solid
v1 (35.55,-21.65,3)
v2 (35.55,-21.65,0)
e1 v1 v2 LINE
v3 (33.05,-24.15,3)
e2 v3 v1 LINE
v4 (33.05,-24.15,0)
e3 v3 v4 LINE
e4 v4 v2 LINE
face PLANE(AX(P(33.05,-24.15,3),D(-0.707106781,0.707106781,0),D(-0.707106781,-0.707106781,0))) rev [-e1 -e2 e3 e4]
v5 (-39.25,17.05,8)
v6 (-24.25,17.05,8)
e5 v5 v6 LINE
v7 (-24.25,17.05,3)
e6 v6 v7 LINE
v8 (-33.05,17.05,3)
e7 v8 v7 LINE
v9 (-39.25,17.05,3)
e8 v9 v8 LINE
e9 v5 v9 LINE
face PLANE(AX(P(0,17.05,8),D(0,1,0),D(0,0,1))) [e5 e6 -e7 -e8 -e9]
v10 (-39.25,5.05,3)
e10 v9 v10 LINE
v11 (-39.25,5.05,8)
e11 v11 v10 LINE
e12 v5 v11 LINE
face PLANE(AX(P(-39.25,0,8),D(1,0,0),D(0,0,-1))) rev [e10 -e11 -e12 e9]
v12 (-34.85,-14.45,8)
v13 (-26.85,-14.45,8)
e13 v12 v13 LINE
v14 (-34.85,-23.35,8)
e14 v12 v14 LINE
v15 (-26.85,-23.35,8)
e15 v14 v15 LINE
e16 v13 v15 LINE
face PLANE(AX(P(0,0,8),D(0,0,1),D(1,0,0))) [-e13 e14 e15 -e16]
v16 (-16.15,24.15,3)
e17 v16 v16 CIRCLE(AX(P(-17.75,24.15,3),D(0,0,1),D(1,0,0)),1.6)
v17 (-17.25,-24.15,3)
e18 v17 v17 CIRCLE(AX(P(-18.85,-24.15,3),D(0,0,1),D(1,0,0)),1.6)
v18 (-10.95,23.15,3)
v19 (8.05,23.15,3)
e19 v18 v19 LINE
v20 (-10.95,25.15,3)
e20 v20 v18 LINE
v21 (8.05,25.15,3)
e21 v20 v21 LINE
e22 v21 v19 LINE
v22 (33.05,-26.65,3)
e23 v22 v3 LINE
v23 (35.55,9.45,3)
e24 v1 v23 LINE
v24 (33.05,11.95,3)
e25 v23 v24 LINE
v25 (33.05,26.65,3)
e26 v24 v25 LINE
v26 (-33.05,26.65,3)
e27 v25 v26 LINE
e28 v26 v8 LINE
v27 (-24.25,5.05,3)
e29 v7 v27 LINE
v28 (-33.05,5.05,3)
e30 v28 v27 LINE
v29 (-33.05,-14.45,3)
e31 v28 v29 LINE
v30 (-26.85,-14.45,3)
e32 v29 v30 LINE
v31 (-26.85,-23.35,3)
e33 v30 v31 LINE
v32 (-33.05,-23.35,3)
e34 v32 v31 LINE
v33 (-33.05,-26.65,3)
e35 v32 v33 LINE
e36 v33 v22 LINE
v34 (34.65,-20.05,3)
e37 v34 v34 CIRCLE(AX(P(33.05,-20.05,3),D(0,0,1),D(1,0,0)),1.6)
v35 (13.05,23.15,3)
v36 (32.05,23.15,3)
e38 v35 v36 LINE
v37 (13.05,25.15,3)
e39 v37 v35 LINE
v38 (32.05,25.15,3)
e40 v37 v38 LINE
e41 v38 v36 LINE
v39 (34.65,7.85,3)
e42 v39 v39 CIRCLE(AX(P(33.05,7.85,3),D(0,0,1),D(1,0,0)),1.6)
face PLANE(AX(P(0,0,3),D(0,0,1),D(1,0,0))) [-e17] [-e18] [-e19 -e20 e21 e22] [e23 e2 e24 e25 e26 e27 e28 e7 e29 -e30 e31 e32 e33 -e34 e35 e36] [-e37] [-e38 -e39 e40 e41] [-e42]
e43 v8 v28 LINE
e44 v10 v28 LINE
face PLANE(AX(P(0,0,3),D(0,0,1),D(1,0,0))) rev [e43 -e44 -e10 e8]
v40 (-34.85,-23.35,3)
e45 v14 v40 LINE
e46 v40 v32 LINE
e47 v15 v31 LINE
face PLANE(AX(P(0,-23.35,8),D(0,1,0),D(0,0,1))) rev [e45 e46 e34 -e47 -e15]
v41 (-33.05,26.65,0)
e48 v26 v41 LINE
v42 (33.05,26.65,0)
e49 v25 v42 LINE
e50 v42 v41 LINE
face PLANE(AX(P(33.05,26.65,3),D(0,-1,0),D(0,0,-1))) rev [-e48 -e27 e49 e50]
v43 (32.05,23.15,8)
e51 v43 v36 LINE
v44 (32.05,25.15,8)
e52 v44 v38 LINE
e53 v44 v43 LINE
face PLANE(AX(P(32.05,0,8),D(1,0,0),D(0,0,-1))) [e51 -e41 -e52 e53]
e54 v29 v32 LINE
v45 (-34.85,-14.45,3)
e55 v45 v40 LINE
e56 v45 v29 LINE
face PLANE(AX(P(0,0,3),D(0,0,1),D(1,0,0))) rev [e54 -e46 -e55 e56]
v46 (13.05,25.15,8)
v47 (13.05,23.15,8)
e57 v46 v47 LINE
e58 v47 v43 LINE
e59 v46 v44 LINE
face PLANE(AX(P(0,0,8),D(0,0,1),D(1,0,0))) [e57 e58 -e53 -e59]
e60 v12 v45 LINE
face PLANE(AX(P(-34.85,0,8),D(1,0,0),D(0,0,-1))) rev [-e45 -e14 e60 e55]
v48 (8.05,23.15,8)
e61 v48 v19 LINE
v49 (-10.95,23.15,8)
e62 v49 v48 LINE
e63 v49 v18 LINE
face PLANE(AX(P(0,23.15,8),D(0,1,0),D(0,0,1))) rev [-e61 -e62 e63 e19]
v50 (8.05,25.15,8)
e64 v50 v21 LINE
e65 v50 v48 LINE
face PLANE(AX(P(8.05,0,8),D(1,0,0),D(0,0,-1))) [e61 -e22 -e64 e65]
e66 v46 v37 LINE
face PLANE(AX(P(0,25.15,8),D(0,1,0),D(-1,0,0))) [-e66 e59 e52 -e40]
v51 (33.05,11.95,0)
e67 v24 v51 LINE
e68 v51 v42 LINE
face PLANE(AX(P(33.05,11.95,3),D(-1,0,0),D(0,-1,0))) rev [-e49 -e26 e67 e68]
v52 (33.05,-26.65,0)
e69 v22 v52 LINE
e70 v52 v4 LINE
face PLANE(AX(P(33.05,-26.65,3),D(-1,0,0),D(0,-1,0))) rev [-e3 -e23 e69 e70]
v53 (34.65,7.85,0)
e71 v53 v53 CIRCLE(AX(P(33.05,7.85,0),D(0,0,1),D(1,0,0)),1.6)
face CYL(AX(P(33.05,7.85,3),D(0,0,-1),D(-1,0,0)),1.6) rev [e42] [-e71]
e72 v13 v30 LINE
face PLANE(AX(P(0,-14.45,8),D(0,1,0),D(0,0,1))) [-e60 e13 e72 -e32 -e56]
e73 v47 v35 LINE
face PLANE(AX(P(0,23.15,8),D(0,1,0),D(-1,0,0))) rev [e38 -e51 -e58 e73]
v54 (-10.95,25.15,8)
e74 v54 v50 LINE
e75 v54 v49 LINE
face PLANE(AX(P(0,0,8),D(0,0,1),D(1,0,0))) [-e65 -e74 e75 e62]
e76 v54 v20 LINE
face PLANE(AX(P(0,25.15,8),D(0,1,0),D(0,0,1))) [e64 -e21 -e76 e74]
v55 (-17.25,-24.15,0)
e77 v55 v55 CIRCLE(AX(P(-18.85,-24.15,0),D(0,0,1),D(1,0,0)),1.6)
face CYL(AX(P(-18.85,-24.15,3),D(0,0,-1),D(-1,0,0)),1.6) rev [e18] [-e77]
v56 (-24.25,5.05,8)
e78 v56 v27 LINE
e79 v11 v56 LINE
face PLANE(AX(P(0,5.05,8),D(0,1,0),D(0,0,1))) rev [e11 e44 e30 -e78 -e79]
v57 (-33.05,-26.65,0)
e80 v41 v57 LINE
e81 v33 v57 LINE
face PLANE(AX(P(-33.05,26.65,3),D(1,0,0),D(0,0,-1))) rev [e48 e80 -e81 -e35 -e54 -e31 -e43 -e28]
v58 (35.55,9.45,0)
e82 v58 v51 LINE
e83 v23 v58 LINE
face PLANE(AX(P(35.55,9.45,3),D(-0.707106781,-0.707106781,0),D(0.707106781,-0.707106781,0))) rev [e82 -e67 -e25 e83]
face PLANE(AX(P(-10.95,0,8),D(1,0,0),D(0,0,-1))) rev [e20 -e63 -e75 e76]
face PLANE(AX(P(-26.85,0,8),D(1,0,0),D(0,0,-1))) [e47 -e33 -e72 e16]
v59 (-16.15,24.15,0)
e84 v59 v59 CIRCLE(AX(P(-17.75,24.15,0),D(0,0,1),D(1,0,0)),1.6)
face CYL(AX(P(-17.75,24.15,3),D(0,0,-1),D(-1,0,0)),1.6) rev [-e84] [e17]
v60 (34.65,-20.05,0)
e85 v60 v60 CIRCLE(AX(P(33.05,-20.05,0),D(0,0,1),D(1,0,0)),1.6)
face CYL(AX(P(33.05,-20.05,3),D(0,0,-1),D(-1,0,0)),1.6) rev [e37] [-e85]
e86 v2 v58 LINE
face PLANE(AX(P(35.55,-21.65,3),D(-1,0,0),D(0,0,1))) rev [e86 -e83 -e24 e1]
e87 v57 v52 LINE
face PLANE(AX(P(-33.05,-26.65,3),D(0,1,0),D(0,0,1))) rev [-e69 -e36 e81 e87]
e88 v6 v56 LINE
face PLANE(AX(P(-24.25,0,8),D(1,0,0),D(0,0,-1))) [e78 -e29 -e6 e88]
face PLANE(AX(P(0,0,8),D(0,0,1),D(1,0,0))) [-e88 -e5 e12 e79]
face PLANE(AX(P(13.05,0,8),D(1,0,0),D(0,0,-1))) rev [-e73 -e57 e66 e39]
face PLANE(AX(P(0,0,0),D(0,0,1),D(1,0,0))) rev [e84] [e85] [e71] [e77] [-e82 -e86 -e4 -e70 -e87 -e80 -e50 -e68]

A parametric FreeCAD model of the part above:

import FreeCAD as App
import Part
import Sketcher
from FreeCAD import Vector

doc = App.newDocument("Part")
params = doc.addObject("Spreadsheet::Sheet", "Params")
for row, (alias, value) in enumerate([
    ("sketch1_diameter", "3.2 mm"),
    ("sketch1_width", "66.1 mm"),
    ("sketch1_height", "53.3 mm"),
    ("sketch1_height2", "2.5 mm"),
    ("sketch1_height3", "31.1 mm"),
    ("pad1_length", "3 mm"),
    ("sketch2_width", "15 mm"),
    ("sketch2_width2", "8 mm"),
    ("sketch2_width3", "19 mm"),
    ("sketch2_height", "12 mm"),
    ("sketch2_height2", "2 mm"),
    ("pad2_length", "5 mm"),
], start=1):
    params.set(f"A{row}", alias)
    params.set(f"B{row}", "=" + value)
    params.setAlias(f"B{row}", alias)

body = doc.addObject("PartDesign::Body", "Body")

sketch1 = body.newObject("Sketcher::SketchObject", "Sketch")
sketch1.AttachmentSupport = (doc.getObject("XY_Plane"), [""])
sketch1.MapMode = "FlatFace"
sketch1.addGeometry([
    Part.LineSegment(Vector(-33, 26.6, 0), Vector(-33, -26.6, 0)),
    Part.LineSegment(Vector(-33, -26.6, 0), Vector(33, -26.6, 0)),
    Part.LineSegment(Vector(33, -26.6, 0), Vector(33, -24.1, 0)),
    Part.LineSegment(Vector(33, -24.1, 0), Vector(35.5, -21.6, 0)),
    Part.LineSegment(Vector(35.5, -21.6, 0), Vector(35.5, 9.4, 0)),
    Part.LineSegment(Vector(35.5, 9.4, 0), Vector(33, 11.9, 0)),
    Part.LineSegment(Vector(33, 11.9, 0), Vector(33, 26.6, 0)),
    Part.LineSegment(Vector(33, 26.6, 0), Vector(-33, 26.6, 0)),
    Part.Circle(Vector(-18.9, -24.1, 0), Vector(0, 0, 1), 1.6),
    Part.Circle(Vector(33, -20.1, 0), Vector(0, 0, 1), 1.6),
    Part.Circle(Vector(-17.8, 24.1, 0), Vector(0, 0, 1), 1.6),
    Part.Circle(Vector(33, 7.8, 0), Vector(0, 0, 1), 1.6),
], False)
sketch1.addConstraint([
    Sketcher.Constraint("Coincident", 0, 2, 1, 1),
    Sketcher.Constraint("Coincident", 1, 2, 2, 1),
    Sketcher.Constraint("Coincident", 2, 2, 3, 1),
    Sketcher.Constraint("Coincident", 3, 2, 4, 1),
    Sketcher.Constraint("Coincident", 4, 2, 5, 1),
    Sketcher.Constraint("Coincident", 5, 2, 6, 1),
    Sketcher.Constraint("Coincident", 6, 2, 7, 1),
    Sketcher.Constraint("Coincident", 7, 2, 0, 1),
    Sketcher.Constraint("Vertical", 0),
    Sketcher.Constraint("Horizontal", 1),
    Sketcher.Constraint("Vertical", 2),
    Sketcher.Constraint("Vertical", 4),
    Sketcher.Constraint("Vertical", 6),
    Sketcher.Constraint("Horizontal", 7),
    Sketcher.Constraint("Equal", 8, 9),
    Sketcher.Constraint("Equal", 9, 10),
    Sketcher.Constraint("Equal", 10, 11),
    Sketcher.Constraint("Symmetric", 0, 2, 6, 2, -1, 1),
    Sketcher.Constraint("Perpendicular", 3, 5),
    Sketcher.Constraint("Horizontal", 8, 3, 2, 2),
    Sketcher.Constraint("Vertical", 9, 3, 11, 3),
    Sketcher.Constraint("Vertical", 11, 3, 1, 2),
    Sketcher.Constraint("Vertical", 2, 2, 5, 2),
    Sketcher.Constraint("Equal", 3, 5),
    Sketcher.Constraint("Diameter", 8, 3.2),
    Sketcher.Constraint("DistanceX", 1, 1, 1, 2, 66.1),
    Sketcher.Constraint("DistanceY", 0, 2, 0, 1, 53.3),
    Sketcher.Constraint("DistanceY", 2, 1, 2, 2, 2.5),
    Sketcher.Constraint("DistanceY", 4, 1, 4, 2, 31.1),
    Sketcher.Constraint("DistanceY", 6, 1, 6, 2, 14.7),
    Sketcher.Constraint("DistanceY", 8, 3, 11, 3, 32.0),
    Sketcher.Constraint("DistanceY", 9, 3, 5, 2, 32.0),
    Sketcher.Constraint("DistanceX", 8, 3, 9, 3, 51.9),
    Sketcher.Constraint("DistanceX", 8, 3, 10, 3, 1.1),
    Sketcher.Constraint("DistanceY", 8, 3, 10, 3, 48.3),
])
sketch1.setExpression("Constraints[24]", "Params.sketch1_diameter")
sketch1.setExpression("Constraints[25]", "Params.sketch1_width")
sketch1.setExpression("Constraints[26]", "Params.sketch1_height")
sketch1.setExpression("Constraints[27]", "Params.sketch1_height2")
sketch1.setExpression("Constraints[28]", "Params.sketch1_height3")
pad1 = body.newObject("PartDesign::Pad", "Pad")
pad1.Profile = sketch1
pad1.setExpression("Length", "Params.pad1_length")

sketch2 = body.newObject("Sketcher::SketchObject", "Sketch001")
sketch2.AttachmentSupport = (doc.getObject("XY_Plane"), [""])
sketch2.MapMode = "FlatFace"
sketch2.AttachmentOffset = App.Placement(Vector(0, 0, 3), App.Rotation())
sketch2.addGeometry([
    Part.LineSegment(Vector(-24.2, 5, 0), Vector(-24.2, 17.1, 0)),
    Part.LineSegment(Vector(-24.2, 17.1, 0), Vector(-39.2, 17.1, 0)),
    Part.LineSegment(Vector(-39.2, 17.1, 0), Vector(-39.2, 5, 0)),
    Part.LineSegment(Vector(-39.2, 5, 0), Vector(-24.2, 5, 0)),
    Part.LineSegment(Vector(-26.9, -23.4, 0), Vector(-26.9, -14.4, 0)),
    Part.LineSegment(Vector(-26.9, -14.4, 0), Vector(-34.9, -14.4, 0)),
    Part.LineSegment(Vector(-34.9, -14.4, 0), Vector(-34.9, -23.4, 0)),
    Part.LineSegment(Vector(-34.9, -23.4, 0), Vector(-26.9, -23.4, 0)),
    Part.LineSegment(Vector(13.1, 25.1, 0), Vector(13.1, 23.1, 0)),
    Part.LineSegment(Vector(13.1, 23.1, 0), Vector(32, 23.1, 0)),
    Part.LineSegment(Vector(32, 23.1, 0), Vector(32, 25.1, 0)),
    Part.LineSegment(Vector(32, 25.1, 0), Vector(13.1, 25.1, 0)),
    Part.LineSegment(Vector(-10.9, 25.1, 0), Vector(-10.9, 23.1, 0)),
    Part.LineSegment(Vector(-10.9, 23.1, 0), Vector(8.1, 23.1, 0)),
    Part.LineSegment(Vector(8.1, 23.1, 0), Vector(8.1, 25.1, 0)),
    Part.LineSegment(Vector(8.1, 25.1, 0), Vector(-10.9, 25.1, 0)),
], False)
sketch2.addConstraint([
    Sketcher.Constraint("Coincident", 0, 2, 1, 1),
    Sketcher.Constraint("Coincident", 1, 2, 2, 1),
    Sketcher.Constraint("Coincident", 2, 2, 3, 1),
    Sketcher.Constraint("Coincident", 3, 2, 0, 1),
    Sketcher.Constraint("Coincident", 4, 2, 5, 1),
    Sketcher.Constraint("Coincident", 5, 2, 6, 1),
    Sketcher.Constraint("Coincident", 6, 2, 7, 1),
    Sketcher.Constraint("Coincident", 7, 2, 4, 1),
    Sketcher.Constraint("Coincident", 8, 2, 9, 1),
    Sketcher.Constraint("Coincident", 9, 2, 10, 1),
    Sketcher.Constraint("Coincident", 10, 2, 11, 1),
    Sketcher.Constraint("Coincident", 11, 2, 8, 1),
    Sketcher.Constraint("Coincident", 12, 2, 13, 1),
    Sketcher.Constraint("Coincident", 13, 2, 14, 1),
    Sketcher.Constraint("Coincident", 14, 2, 15, 1),
    Sketcher.Constraint("Coincident", 15, 2, 12, 1),
    Sketcher.Constraint("Vertical", 0),
    Sketcher.Constraint("Horizontal", 1),
    Sketcher.Constraint("Vertical", 2),
    Sketcher.Constraint("Horizontal", 3),
    Sketcher.Constraint("Vertical", 4),
    Sketcher.Constraint("Horizontal", 5),
    Sketcher.Constraint("Vertical", 6),
    Sketcher.Constraint("Horizontal", 7),
    Sketcher.Constraint("Vertical", 8),
    Sketcher.Constraint("Horizontal", 9),
    Sketcher.Constraint("Vertical", 10),
    Sketcher.Constraint("Horizontal", 11),
    Sketcher.Constraint("Vertical", 12),
    Sketcher.Constraint("Horizontal", 13),
    Sketcher.Constraint("Vertical", 14),
    Sketcher.Constraint("Horizontal", 15),
    Sketcher.Constraint("Horizontal", 9, 2, 12, 2),
    Sketcher.Constraint("Horizontal", 11, 2, 14, 2),
    Sketcher.Constraint("Equal", 11, 13),
    Sketcher.Constraint("DistanceX", 1, 2, 1, 1, 15.0),
    Sketcher.Constraint("DistanceX", 5, 2, 5, 1, 8.0),
    Sketcher.Constraint("DistanceX", 9, 1, 9, 2, 19.0),
    Sketcher.Constraint("DistanceY", 0, 1, 0, 2, 12.0),
    Sketcher.Constraint("DistanceY", 8, 2, 8, 1, 2.0),
    Sketcher.Constraint("DistanceY", 4, 1, 4, 2, 8.9),
    Sketcher.Constraint("DistanceX", 12, 2, 8, 2, 24.0),
    Sketcher.Constraint("DistanceX", 4, 2, 3, 2, 2.6),
    Sketcher.Constraint("DistanceY", 4, 2, 3, 2, 19.5),
    Sketcher.Constraint("DistanceX", 0, 2, 8, 2, 37.3),
    Sketcher.Constraint("DistanceY", 0, 2, 8, 2, 6.1),
    Sketcher.Constraint("DistanceX", 0, 2, -1, 1, 24.25),
    Sketcher.Constraint("DistanceY", -1, 1, 0, 2, 17.05),
])
sketch2.setExpression("Constraints[35]", "Params.sketch2_width")
sketch2.setExpression("Constraints[36]", "Params.sketch2_width2")
sketch2.setExpression("Constraints[37]", "Params.sketch2_width3")
sketch2.setExpression("Constraints[38]", "Params.sketch2_height")
sketch2.setExpression("Constraints[39]", "Params.sketch2_height2")
pad2 = body.newObject("PartDesign::Pad", "Pad001")
pad2.Profile = sketch2
pad2.setExpression("Length", "Params.pad2_length")

doc.recompute()
